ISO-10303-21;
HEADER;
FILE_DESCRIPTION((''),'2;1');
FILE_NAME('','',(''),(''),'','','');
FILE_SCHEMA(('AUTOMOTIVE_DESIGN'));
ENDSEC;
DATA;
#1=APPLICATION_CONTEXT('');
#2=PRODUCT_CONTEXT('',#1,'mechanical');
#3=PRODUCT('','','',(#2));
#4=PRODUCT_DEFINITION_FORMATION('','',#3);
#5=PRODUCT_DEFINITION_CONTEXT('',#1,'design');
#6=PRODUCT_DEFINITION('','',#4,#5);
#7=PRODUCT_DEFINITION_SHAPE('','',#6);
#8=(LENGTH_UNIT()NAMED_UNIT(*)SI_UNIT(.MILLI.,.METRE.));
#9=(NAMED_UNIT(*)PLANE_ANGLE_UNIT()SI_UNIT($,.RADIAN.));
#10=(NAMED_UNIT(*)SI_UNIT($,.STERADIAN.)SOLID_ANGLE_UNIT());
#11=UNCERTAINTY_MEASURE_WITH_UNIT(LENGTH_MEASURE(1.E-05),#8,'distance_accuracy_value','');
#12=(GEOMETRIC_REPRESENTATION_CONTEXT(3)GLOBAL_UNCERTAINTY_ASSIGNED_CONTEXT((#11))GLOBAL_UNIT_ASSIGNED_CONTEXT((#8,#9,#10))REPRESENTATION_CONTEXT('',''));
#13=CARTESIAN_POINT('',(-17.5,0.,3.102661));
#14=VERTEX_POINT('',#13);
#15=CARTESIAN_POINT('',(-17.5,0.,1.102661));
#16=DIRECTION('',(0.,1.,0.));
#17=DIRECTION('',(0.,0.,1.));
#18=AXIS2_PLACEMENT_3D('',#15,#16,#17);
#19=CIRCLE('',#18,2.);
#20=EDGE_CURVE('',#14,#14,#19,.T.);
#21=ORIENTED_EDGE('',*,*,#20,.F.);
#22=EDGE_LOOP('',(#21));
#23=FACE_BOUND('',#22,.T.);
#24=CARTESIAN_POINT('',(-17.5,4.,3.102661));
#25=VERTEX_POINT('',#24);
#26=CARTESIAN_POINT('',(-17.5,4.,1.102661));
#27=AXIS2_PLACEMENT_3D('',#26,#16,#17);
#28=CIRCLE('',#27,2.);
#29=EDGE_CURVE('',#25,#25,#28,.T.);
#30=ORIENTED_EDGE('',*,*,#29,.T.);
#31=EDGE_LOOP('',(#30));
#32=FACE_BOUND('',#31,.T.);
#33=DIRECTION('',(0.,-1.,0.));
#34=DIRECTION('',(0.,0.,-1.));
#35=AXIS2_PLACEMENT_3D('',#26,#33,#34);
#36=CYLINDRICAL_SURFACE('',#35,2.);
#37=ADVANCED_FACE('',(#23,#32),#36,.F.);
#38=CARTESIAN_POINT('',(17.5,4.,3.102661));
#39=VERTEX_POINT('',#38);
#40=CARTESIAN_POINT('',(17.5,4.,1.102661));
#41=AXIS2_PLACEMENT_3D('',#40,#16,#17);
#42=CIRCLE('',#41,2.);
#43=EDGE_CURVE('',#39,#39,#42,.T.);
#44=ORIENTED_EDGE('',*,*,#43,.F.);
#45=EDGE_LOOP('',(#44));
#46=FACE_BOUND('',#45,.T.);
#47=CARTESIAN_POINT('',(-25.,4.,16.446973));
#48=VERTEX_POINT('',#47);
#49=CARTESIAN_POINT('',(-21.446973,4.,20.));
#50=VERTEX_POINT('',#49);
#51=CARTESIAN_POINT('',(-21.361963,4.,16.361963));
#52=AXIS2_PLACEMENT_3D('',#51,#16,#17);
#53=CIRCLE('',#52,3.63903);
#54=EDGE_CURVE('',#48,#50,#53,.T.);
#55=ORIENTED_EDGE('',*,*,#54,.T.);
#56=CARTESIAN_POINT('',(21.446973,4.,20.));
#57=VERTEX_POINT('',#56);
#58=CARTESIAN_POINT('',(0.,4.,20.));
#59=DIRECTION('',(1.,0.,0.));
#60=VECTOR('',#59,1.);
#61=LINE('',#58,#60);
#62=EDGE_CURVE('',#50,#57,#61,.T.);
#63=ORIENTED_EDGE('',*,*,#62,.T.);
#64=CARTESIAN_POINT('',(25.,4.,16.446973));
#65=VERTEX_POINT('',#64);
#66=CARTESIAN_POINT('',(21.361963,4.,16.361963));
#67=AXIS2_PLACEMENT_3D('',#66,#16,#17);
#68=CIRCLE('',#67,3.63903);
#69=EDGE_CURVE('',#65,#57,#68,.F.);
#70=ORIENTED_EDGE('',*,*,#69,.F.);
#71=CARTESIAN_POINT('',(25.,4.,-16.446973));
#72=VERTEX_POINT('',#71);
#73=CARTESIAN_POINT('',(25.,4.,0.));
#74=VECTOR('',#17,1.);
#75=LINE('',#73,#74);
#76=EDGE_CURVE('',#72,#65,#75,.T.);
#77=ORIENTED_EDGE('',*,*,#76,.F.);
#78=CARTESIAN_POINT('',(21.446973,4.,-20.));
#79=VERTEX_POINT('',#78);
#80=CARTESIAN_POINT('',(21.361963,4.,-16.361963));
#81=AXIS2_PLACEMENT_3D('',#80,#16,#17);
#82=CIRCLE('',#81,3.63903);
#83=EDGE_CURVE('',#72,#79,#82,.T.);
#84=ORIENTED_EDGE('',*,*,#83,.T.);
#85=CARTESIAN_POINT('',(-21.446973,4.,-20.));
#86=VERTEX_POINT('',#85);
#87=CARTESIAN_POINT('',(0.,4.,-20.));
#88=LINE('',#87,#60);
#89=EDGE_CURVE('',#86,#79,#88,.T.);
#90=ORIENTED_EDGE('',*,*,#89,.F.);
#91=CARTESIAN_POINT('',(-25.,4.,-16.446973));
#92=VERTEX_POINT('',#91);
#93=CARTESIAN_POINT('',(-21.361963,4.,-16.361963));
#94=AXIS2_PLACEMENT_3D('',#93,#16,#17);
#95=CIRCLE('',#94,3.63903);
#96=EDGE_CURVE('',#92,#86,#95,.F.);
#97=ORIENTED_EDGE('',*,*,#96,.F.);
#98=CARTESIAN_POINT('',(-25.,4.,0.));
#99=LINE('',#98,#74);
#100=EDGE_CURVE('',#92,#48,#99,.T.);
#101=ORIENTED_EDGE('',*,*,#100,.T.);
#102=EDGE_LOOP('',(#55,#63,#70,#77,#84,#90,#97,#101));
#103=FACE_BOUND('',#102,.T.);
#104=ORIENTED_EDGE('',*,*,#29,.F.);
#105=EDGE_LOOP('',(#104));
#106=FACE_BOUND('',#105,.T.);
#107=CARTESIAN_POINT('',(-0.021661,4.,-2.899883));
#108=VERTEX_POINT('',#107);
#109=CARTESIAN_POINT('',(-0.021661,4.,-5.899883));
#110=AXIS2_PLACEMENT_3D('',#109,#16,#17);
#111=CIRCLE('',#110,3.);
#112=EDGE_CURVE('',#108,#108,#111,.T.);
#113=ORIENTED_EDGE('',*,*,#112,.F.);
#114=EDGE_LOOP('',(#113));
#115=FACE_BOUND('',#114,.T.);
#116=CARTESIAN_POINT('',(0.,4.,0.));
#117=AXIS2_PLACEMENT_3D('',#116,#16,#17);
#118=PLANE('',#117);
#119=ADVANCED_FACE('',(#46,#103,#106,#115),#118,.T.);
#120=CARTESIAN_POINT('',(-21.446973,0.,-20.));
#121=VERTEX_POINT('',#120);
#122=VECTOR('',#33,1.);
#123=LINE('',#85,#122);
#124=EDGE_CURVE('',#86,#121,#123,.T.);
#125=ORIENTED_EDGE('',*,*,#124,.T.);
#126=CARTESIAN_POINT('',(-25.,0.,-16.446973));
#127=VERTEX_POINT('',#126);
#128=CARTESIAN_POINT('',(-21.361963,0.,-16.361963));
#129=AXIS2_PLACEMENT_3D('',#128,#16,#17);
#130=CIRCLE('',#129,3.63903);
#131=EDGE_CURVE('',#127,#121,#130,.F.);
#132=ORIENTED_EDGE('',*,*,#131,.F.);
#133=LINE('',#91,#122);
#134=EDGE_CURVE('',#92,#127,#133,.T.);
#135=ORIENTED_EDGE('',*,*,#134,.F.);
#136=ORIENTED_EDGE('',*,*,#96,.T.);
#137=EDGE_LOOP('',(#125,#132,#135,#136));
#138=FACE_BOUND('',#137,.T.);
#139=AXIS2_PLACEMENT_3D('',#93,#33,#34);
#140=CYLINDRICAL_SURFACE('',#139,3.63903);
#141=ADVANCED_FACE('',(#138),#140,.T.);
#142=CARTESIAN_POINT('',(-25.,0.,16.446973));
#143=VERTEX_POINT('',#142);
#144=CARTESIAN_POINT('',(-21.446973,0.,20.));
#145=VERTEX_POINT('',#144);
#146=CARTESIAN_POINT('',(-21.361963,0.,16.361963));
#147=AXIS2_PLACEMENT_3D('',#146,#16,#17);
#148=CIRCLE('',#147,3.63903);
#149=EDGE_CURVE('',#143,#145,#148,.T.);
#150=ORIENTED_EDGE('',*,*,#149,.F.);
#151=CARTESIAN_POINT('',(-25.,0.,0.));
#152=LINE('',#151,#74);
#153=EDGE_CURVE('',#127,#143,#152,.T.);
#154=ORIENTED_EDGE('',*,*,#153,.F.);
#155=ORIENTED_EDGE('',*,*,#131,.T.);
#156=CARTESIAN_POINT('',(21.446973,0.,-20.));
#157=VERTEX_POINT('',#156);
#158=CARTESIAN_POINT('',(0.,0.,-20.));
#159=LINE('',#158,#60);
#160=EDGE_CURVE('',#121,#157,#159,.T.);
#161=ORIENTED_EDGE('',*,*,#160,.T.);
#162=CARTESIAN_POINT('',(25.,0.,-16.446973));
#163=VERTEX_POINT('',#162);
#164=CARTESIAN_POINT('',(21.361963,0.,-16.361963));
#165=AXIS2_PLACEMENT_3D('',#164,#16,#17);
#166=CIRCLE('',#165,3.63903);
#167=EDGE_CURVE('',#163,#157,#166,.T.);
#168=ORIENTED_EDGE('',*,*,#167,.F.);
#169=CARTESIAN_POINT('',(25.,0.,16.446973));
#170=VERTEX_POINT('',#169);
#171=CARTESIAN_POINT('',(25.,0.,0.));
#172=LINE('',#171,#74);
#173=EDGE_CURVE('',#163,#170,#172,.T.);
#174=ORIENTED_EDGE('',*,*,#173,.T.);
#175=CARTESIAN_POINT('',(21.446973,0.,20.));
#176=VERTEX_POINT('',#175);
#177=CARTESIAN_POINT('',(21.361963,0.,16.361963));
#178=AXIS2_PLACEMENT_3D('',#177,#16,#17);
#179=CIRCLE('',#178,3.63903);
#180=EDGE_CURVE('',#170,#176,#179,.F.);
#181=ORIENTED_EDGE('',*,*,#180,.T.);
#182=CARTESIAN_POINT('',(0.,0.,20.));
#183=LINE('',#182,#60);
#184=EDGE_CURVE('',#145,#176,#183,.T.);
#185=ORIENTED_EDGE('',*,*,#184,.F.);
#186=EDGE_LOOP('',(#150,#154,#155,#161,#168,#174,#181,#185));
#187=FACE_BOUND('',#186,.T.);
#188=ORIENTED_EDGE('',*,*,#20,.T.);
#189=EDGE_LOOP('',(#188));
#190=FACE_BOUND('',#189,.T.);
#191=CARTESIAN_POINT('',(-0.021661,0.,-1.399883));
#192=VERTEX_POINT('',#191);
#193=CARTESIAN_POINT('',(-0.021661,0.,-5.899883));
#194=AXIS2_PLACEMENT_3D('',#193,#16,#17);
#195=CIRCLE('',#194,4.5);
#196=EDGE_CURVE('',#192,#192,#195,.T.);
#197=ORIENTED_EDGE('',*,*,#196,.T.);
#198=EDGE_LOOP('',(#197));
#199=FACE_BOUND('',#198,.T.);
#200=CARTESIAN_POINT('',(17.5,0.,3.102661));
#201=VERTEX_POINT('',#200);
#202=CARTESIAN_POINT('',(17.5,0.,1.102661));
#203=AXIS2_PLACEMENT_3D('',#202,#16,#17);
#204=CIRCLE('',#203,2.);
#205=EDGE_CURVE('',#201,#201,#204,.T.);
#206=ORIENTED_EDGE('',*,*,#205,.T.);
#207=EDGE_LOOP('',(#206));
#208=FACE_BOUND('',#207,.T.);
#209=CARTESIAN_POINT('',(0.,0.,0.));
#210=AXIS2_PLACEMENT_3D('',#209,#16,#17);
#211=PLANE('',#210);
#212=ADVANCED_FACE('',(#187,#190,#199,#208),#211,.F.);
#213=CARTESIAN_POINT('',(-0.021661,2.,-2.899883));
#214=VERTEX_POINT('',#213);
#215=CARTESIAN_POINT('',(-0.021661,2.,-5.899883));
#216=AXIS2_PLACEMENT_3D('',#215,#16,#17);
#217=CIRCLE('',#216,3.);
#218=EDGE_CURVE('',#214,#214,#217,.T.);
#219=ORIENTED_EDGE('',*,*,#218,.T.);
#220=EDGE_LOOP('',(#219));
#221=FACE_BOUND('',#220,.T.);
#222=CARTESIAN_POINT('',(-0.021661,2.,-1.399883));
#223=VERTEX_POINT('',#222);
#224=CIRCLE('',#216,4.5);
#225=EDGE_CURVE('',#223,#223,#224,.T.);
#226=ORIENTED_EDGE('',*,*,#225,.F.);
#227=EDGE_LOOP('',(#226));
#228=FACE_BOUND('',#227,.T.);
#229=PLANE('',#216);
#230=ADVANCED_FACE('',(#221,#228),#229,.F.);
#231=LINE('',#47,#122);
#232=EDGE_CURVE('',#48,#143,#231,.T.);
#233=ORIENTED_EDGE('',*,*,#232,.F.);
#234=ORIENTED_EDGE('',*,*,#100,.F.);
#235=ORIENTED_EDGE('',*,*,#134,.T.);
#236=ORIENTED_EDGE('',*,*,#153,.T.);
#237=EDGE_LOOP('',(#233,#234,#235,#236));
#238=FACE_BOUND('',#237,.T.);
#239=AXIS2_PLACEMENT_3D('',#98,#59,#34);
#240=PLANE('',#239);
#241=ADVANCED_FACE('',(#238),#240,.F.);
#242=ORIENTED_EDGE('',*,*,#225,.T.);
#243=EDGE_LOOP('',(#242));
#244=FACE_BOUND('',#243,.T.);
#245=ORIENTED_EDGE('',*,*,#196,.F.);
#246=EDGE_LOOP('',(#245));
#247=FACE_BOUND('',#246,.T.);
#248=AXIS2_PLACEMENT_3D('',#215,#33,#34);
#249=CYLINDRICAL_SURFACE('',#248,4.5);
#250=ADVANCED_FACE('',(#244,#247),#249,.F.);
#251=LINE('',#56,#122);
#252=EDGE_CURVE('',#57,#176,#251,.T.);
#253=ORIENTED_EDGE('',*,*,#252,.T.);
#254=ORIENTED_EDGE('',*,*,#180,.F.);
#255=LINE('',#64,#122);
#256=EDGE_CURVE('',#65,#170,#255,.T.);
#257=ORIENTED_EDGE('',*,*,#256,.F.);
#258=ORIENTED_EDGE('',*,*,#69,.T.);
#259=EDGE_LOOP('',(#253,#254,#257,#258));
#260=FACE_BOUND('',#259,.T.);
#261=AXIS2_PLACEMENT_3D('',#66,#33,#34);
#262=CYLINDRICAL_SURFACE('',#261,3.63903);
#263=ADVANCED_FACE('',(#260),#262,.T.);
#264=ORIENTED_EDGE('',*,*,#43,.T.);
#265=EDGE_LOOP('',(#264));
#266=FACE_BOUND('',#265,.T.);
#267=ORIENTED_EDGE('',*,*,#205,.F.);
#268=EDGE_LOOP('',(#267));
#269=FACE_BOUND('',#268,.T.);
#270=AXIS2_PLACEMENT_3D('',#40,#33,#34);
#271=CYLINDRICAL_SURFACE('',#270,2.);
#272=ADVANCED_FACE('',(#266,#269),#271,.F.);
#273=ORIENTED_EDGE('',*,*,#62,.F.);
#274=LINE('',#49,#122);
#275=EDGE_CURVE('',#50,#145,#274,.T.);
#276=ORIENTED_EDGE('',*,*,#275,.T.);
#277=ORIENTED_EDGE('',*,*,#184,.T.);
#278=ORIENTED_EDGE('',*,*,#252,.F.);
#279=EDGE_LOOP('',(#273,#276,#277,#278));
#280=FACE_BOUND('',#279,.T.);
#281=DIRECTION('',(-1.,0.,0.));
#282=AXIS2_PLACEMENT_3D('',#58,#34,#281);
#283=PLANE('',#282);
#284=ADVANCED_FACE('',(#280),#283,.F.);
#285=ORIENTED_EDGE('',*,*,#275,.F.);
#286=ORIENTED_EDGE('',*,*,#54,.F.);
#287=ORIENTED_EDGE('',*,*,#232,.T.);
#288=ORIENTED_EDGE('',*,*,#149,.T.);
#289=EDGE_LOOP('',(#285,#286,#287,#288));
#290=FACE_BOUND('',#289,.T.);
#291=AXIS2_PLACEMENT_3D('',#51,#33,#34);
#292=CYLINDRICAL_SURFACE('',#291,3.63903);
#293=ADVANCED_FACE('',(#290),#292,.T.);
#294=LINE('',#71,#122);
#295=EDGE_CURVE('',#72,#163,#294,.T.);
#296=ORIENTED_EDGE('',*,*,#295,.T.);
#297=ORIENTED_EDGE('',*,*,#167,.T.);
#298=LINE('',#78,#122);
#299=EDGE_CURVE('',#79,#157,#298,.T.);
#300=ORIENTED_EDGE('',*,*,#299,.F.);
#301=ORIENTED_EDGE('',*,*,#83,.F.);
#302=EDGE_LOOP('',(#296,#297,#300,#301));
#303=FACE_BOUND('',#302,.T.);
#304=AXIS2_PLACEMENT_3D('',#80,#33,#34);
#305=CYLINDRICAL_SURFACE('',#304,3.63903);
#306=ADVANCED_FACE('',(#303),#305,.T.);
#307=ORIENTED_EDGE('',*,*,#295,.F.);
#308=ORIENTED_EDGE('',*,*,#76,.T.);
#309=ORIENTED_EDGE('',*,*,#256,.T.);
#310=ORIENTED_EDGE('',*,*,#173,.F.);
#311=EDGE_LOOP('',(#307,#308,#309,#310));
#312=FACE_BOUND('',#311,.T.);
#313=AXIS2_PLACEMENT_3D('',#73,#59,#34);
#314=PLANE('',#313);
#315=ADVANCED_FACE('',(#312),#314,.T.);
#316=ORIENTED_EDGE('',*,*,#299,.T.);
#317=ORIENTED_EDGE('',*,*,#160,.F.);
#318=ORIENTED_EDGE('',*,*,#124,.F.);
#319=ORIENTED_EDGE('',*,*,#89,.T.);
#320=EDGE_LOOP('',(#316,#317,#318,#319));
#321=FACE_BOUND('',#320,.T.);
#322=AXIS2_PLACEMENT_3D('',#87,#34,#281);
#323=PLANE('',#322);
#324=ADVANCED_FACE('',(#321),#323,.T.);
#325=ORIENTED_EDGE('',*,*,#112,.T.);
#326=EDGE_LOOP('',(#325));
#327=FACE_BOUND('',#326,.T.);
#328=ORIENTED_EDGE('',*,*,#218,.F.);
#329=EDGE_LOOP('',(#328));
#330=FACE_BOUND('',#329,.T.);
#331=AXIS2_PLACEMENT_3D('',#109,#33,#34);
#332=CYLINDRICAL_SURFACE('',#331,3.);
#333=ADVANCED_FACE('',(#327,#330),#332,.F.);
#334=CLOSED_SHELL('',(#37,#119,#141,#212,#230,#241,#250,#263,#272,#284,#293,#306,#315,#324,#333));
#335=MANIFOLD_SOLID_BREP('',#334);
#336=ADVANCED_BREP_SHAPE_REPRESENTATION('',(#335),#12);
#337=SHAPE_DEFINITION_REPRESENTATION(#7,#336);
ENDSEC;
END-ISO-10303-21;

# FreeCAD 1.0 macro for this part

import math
import FreeCAD as App
import Part
import Sketcher

V = App.Vector

doc = App.newDocument("Part")
body = doc.addObject("PartDesign::Body", "Body")

# Sketch on XZ plane
sketch1 = body.newObject("Sketcher::SketchObject", "Sketch")
sketch1.AttachmentSupport = (doc.getObject("XZ_Plane"), [""])
sketch1.MapMode = "FlatFace"
sketch1.addGeometry(Part.LineSegment(V(21.446973, -20, 0), V(-21.446973, -20, 0)), False)
sketch1.addGeometry(Part.ArcOfCircle(Part.Circle(V(-21.361963, -16.361963, 0), V(0, 0, 1), 3.63903), math.radians(-178.661405), math.radians(-91.338595)), False)
sketch1.addGeometry(Part.LineSegment(V(-25, -16.446973, 0), V(-25, 16.446973, 0)), False)
sketch1.addGeometry(Part.ArcOfCircle(Part.Circle(V(-21.361963, 16.361963, 0), V(0, 0, 1), 3.63903), math.radians(91.338595), math.radians(178.661405)), False)
sketch1.addGeometry(Part.LineSegment(V(-21.446973, 20, 0), V(21.446973, 20, 0)), False)
sketch1.addGeometry(Part.ArcOfCircle(Part.Circle(V(21.361963, 16.361963, 0), V(0, 0, 1), 3.63903), math.radians(1.338595), math.radians(88.661405)), False)
sketch1.addGeometry(Part.LineSegment(V(25, 16.446973, 0), V(25, -16.446973, 0)), False)
sketch1.addGeometry(Part.ArcOfCircle(Part.Circle(V(21.361963, -16.361963, 0), V(0, 0, 1), 3.63903), math.radians(-88.661405), math.radians(-1.338595)), False)
sketch1.addGeometry(Part.Circle(V(-17.5, 1.102661, 0), V(0, 0, 1), 2), False)
sketch1.addGeometry(Part.Circle(V(17.5, 1.102661, 0), V(0, 0, 1), 2), False)
sketch1.addConstraint(Sketcher.Constraint("Coincident", 0, 2, 1, 2))
sketch1.addConstraint(Sketcher.Constraint("Coincident", 1, 1, 2, 1))
sketch1.addConstraint(Sketcher.Constraint("Coincident", 2, 2, 3, 2))
sketch1.addConstraint(Sketcher.Constraint("Coincident", 3, 1, 4, 1))
sketch1.addConstraint(Sketcher.Constraint("Coincident", 4, 2, 5, 2))
sketch1.addConstraint(Sketcher.Constraint("Coincident", 5, 1, 6, 1))
sketch1.addConstraint(Sketcher.Constraint("Coincident", 6, 2, 7, 2))
sketch1.addConstraint(Sketcher.Constraint("Coincident", 7, 1, 0, 1))
sketch1.addConstraint(Sketcher.Constraint("Horizontal", 0))
sketch1.addConstraint(Sketcher.Constraint("Vertical", 2))
sketch1.addConstraint(Sketcher.Constraint("Horizontal", 4))
sketch1.addConstraint(Sketcher.Constraint("Vertical", 6))
sketch1.addConstraint(Sketcher.Constraint("Equal", 1, 3))
sketch1.addConstraint(Sketcher.Constraint("Equal", 3, 5))
sketch1.addConstraint(Sketcher.Constraint("Equal", 5, 7))
sketch1.addConstraint(Sketcher.Constraint("Equal", 8, 9))
sketch1.addConstraint(Sketcher.Constraint("Symmetric", 1, 3, 5, 3, -1, 1))
sketch1.addConstraint(Sketcher.Constraint("Symmetric", 3, 3, 7, 3, -1, 1))
sketch1.addConstraint(Sketcher.Constraint("Symmetric", 3, 3, 5, 3, -2))
sketch1.addConstraint(Sketcher.Constraint("Symmetric", 8, 3, 9, 3, -2))
sketch1.addConstraint(Sketcher.Constraint("Horizontal", 2, 2, 5, 1))
sketch1.addConstraint(Sketcher.Constraint("Vertical", 0, 2, 3, 1))
sketch1.addConstraint(Sketcher.Constraint("Diameter", 8, 4.0))
sketch1.addConstraint(Sketcher.Constraint("DistanceY", 0, 2, -1, 1, 20.0))
sketch1.addConstraint(Sketcher.Constraint("DistanceX", 1, 1, -1, 1, 25.0))
sketch1.addConstraint(Sketcher.Constraint("DistanceX", 8, 3, 9, 3, 35.0))
sketch1.addConstraint(Sketcher.Constraint("Radius", 1, 3.63903))
sketch1.addConstraint(Sketcher.Constraint("DistanceY", 8, 3, 3, 3, 15.259302))
sketch1.addConstraint(Sketcher.Constraint("DistanceX", 0, 2, 0, 1, 42.893946))
sketch1.addConstraint(Sketcher.Constraint("DistanceY", 2, 1, 2, 2, 32.893946))
pad1 = body.newObject("PartDesign::Pad", "Pad")
pad1.Profile = sketch1
pad1.Length = 4
pad1.Reversed = True

# Sketch on XZ plane
sketch2 = body.newObject("Sketcher::SketchObject", "Sketch001")
sketch2.AttachmentSupport = (doc.getObject("XZ_Plane"), [""])
sketch2.MapMode = "FlatFace"
sketch2.addGeometry(Part.Circle(V(-0.021661, -5.899883, 0), V(0, 0, 1), 3), False)
sketch2.addConstraint(Sketcher.Constraint("Diameter", 0, 6.0))
sketch2.addConstraint(Sketcher.Constraint("DistanceX", 0, 3, -1, 1, 0.021661))
sketch2.addConstraint(Sketcher.Constraint("DistanceY", 0, 3, -1, 1, 5.899883))
pocket1 = body.newObject("PartDesign::Pocket", "Pocket")
pocket1.Profile = sketch2
pocket1.Type = "ThroughAll"

# Sketch on XZ plane
sketch3 = body.newObject("Sketcher::SketchObject", "Sketch002")
sketch3.AttachmentSupport = (doc.getObject("XZ_Plane"), [""])
sketch3.MapMode = "FlatFace"
sketch3.addGeometry(Part.Circle(V(-0.021661, -5.899883, 0), V(0, 0, 1), 4.5), False)
sketch3.addConstraint(Sketcher.Constraint("Diameter", 0, 9.0))
sketch3.addConstraint(Sketcher.Constraint("DistanceX", 0, 3, -1, 1, 0.021661))
sketch3.addConstraint(Sketcher.Constraint("DistanceY", 0, 3, -1, 1, 5.899883))
pocket2 = body.newObject("PartDesign::Pocket", "Pocket001")
pocket2.Profile = sketch3
pocket2.Length = 2

doc.recompute()
